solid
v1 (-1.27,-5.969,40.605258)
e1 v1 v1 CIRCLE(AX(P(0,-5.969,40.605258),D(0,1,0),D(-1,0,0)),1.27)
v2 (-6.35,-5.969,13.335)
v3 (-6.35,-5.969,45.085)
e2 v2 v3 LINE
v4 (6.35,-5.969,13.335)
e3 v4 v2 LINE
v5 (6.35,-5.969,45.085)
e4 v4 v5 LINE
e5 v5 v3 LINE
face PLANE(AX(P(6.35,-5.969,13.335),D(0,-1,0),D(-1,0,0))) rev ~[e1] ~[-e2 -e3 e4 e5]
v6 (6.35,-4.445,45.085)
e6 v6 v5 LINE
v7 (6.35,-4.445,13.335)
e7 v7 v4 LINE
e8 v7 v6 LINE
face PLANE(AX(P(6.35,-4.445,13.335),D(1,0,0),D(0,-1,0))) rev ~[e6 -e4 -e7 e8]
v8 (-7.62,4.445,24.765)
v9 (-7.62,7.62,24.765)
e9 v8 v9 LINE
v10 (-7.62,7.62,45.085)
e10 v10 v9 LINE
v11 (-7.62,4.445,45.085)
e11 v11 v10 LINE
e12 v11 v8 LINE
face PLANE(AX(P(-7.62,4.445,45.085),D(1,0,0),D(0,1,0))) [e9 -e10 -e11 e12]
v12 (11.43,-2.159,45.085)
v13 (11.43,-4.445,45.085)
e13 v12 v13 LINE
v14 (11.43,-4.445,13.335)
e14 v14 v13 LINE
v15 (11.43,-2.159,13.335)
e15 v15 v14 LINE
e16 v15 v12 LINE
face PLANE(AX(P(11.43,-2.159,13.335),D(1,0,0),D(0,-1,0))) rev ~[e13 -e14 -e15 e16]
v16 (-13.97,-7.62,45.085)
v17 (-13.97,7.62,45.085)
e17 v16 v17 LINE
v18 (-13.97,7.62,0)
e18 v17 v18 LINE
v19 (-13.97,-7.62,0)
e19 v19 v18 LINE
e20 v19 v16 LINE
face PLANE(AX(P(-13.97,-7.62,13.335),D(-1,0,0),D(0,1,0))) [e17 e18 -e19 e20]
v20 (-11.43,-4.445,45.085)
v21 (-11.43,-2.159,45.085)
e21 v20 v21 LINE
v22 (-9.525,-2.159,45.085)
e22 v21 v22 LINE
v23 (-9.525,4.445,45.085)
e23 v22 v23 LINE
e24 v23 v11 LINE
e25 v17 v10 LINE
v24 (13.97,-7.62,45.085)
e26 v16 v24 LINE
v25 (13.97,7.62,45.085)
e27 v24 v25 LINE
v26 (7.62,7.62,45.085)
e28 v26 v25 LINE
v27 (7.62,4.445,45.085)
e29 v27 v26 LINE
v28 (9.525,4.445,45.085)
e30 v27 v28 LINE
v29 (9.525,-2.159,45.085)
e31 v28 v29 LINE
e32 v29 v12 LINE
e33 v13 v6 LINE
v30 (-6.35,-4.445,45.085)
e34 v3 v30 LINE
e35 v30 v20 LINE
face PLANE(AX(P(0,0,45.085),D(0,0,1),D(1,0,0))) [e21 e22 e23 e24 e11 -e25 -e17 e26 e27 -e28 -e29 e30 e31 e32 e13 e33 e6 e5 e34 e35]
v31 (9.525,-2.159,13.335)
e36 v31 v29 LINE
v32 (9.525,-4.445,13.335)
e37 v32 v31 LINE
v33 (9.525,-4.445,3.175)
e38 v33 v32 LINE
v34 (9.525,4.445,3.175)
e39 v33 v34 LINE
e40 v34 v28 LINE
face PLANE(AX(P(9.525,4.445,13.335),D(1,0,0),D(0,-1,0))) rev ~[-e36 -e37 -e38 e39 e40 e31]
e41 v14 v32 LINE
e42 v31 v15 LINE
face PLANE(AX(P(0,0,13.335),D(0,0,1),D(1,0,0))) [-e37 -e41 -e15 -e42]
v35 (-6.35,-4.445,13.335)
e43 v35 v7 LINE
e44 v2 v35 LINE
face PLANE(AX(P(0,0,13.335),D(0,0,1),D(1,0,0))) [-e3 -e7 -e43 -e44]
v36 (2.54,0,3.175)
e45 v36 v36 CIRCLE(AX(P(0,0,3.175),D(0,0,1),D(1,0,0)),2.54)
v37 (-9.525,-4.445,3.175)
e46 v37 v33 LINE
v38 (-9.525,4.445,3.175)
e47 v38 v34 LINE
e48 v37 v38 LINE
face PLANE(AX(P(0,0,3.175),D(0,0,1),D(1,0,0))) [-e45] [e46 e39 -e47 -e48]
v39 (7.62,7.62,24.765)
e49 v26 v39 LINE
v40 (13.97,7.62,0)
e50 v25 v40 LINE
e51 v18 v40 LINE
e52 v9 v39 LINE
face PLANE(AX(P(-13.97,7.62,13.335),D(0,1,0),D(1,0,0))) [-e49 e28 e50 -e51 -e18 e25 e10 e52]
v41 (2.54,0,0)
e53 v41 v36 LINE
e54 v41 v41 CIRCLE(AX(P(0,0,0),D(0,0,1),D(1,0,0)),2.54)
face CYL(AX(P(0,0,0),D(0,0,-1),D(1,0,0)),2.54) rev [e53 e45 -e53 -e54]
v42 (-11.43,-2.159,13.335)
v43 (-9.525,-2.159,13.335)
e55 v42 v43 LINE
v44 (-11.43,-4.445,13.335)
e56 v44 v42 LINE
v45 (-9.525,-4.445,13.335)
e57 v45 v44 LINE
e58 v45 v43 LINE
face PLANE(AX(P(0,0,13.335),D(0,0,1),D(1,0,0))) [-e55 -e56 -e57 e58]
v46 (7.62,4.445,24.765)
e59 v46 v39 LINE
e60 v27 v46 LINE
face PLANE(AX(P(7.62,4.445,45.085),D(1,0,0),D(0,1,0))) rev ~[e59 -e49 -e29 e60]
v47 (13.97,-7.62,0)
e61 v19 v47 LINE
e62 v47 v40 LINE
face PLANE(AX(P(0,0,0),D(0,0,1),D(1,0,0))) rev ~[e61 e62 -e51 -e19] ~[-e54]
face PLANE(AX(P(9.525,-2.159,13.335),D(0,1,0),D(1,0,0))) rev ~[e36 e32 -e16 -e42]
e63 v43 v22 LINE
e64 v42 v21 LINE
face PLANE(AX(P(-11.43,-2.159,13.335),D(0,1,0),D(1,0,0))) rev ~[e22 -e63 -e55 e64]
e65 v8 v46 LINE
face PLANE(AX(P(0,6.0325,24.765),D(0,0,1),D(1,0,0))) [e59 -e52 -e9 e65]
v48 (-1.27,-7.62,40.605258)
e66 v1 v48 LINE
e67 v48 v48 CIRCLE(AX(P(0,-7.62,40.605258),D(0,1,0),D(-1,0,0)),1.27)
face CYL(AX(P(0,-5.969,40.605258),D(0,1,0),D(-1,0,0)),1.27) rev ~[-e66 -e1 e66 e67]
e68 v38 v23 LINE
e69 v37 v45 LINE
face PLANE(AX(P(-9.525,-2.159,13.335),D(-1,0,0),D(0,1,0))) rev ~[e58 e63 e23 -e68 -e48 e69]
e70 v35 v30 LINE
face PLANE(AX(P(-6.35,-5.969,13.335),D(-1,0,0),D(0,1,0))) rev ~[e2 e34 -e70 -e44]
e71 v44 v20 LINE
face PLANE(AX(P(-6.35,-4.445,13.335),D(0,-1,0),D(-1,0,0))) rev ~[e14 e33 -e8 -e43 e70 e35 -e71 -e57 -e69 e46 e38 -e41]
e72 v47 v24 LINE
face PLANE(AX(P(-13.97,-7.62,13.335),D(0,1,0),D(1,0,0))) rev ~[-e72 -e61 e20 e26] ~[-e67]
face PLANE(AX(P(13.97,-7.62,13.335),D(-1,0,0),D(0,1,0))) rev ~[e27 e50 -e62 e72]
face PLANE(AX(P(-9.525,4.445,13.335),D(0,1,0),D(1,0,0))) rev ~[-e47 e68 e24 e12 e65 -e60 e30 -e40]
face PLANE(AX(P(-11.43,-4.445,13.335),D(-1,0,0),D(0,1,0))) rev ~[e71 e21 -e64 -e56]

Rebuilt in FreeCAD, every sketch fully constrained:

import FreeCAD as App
import Part
import Sketcher

V = App.Vector
Q = App.Units.Quantity

doc = App.newDocument("Part")
body = doc.addObject("PartDesign::Body", "Body")

# Sketch on XY plane
sketch1 = doc.addObject("Sketcher::SketchObject", "Sketch")
body.addObject(sketch1)
sketch1.AttachmentSupport = (doc.XY_Plane, [""])
sketch1.MapMode = "FlatFace"
sketch1.addGeometry([
    Part.LineSegment(V(-14, 7.6, 0), V(-14, -7.6, 0)),  # 0
    Part.LineSegment(V(-14, -7.6, 0), V(14, -7.6, 0)),  # 1
    Part.LineSegment(V(14, -7.6, 0), V(14, 7.6, 0)),  # 2
    Part.LineSegment(V(14, 7.6, 0), V(-14, 7.6, 0)),  # 3
    Part.Circle(V(0, 0, 0), V(0, 0, 1), 2.5),  # 4
], False)
sketch1.addConstraint([
    Sketcher.Constraint("Coincident", 0, 2, 1, 1),
    Sketcher.Constraint("Coincident", 1, 2, 2, 1),
    Sketcher.Constraint("Coincident", 2, 2, 3, 1),
    Sketcher.Constraint("Coincident", 3, 2, 0, 1),
    Sketcher.Constraint("Vertical", 0),
    Sketcher.Constraint("Horizontal", 1),
    Sketcher.Constraint("Vertical", 2),
    Sketcher.Constraint("Horizontal", 3),
    Sketcher.Constraint("Coincident", 4, 3, -1, 1),
    Sketcher.Constraint("Symmetric", 0, 2, 2, 2, -1, 1),
    Sketcher.Constraint("Diameter", 4, Q("0.2 in")),
    Sketcher.Constraint("DistanceX", 1, 1, 1, 2, Q("1.1 in")),
    Sketcher.Constraint("DistanceY", 0, 2, 0, 1, Q("0.6 in")),
])
pad1 = doc.addObject("PartDesign::Pad", "Pad")
body.addObject(pad1)
pad1.Profile = sketch1
pad1.Length = Q("0.125 in")

# Sketch on XY plane
sketch2 = doc.addObject("Sketcher::SketchObject", "Sketch001")
body.addObject(sketch2)
sketch2.AttachmentSupport = (doc.XY_Plane, [""])
sketch2.MapMode = "FlatFace"
sketch2.AttachmentOffset = App.Placement(V(0, 0, 0.125 * 25.4), App.Rotation())
sketch2.addGeometry([
    Part.LineSegment(V(-14, 8, 0), V(-14, -8, 0)),  # 0
    Part.LineSegment(V(-14, -8, 0), V(14, -8, 0)),  # 1
    Part.LineSegment(V(14, -8, 0), V(14, 8, 0)),  # 2
    Part.LineSegment(V(14, 8, 0), V(-14, 8, 0)),  # 3
    Part.LineSegment(V(10, -4, 0), V(-10, -4, 0)),  # 4
    Part.LineSegment(V(-10, -4, 0), V(-10, 4, 0)),  # 5
    Part.LineSegment(V(-10, 4, 0), V(10, 4, 0)),  # 6
    Part.LineSegment(V(10, 4, 0), V(10, -4, 0)),  # 7
], False)
sketch2.addConstraint([
    Sketcher.Constraint("Coincident", 0, 2, 1, 1),
    Sketcher.Constraint("Coincident", 1, 2, 2, 1),
    Sketcher.Constraint("Coincident", 2, 2, 3, 1),
    Sketcher.Constraint("Coincident", 3, 2, 0, 1),
    Sketcher.Constraint("Coincident", 4, 2, 5, 1),
    Sketcher.Constraint("Coincident", 5, 2, 6, 1),
    Sketcher.Constraint("Coincident", 6, 2, 7, 1),
    Sketcher.Constraint("Coincident", 7, 2, 4, 1),
    Sketcher.Constraint("Vertical", 0),
    Sketcher.Constraint("Horizontal", 1),
    Sketcher.Constraint("Vertical", 2),
    Sketcher.Constraint("Horizontal", 3),
    Sketcher.Constraint("Horizontal", 4),
    Sketcher.Constraint("Vertical", 5),
    Sketcher.Constraint("Horizontal", 6),
    Sketcher.Constraint("Vertical", 7),
    Sketcher.Constraint("Symmetric", 0, 2, 2, 2, -1, 1),
    Sketcher.Constraint("Symmetric", 4, 2, 6, 2, -1, 1),
    Sketcher.Constraint("DistanceX", 1, 1, 1, 2, Q("1.1 in")),
    Sketcher.Constraint("DistanceY", 0, 2, 0, 1, Q("0.6 in")),
    Sketcher.Constraint("DistanceX", 4, 2, 4, 1, Q("0.75 in")),
    Sketcher.Constraint("DistanceY", 5, 1, 5, 2, Q("0.35 in")),
])
pad2 = doc.addObject("PartDesign::Pad", "Pad001")
body.addObject(pad2)
pad2.Profile = sketch2
pad2.Length = Q("0.4 in")

# Sketch on XY plane
sketch3 = doc.addObject("Sketcher::SketchObject", "Sketch002")
body.addObject(sketch3)
sketch3.AttachmentSupport = (doc.XY_Plane, [""])
sketch3.MapMode = "FlatFace"
sketch3.AttachmentOffset = App.Placement(V(0, 0, 0.525 * 25.4), App.Rotation())
sketch3.addGeometry([
    Part.LineSegment(V(-14, 7.6, 0), V(-14, -7.6, 0)),  # 0
    Part.LineSegment(V(-14, -7.6, 0), V(14, -7.6, 0)),  # 1
    Part.LineSegment(V(14, -7.6, 0), V(14, 7.6, 0)),  # 2
    Part.LineSegment(V(14, 7.6, 0), V(-14, 7.6, 0)),  # 3
    Part.LineSegment(V(-6.3, -4.4, 0), V(-11.4, -4.4, 0)),  # 4
    Part.LineSegment(V(-11.4, -4.4, 0), V(-11.4, -2.2, 0)),  # 5
    Part.LineSegment(V(-11.4, -2.2, 0), V(-9.5, -2.2, 0)),  # 6
    Part.LineSegment(V(-9.5, -2.2, 0), V(-9.5, 4.4, 0)),  # 7
    Part.LineSegment(V(-9.5, 4.4, 0), V(9.5, 4.4, 0)),  # 8
    Part.LineSegment(V(9.5, 4.4, 0), V(9.5, -2.2, 0)),  # 9
    Part.LineSegment(V(9.5, -2.2, 0), V(11.4, -2.2, 0)),  # 10
    Part.LineSegment(V(11.4, -2.2, 0), V(11.4, -4.4, 0)),  # 11
    Part.LineSegment(V(11.4, -4.4, 0), V(6.3, -4.4, 0)),  # 12
    Part.LineSegment(V(6.3, -4.4, 0), V(6.3, -6, 0)),  # 13
    Part.LineSegment(V(6.3, -6, 0), V(-6.3, -6, 0)),  # 14
    Part.LineSegment(V(-6.3, -6, 0), V(-6.3, -4.4, 0)),  # 15
], False)
sketch3.addConstraint([
    Sketcher.Constraint("Coincident", 0, 2, 1, 1),
    Sketcher.Constraint("Coincident", 1, 2, 2, 1),
    Sketcher.Constraint("Coincident", 2, 2, 3, 1),
    Sketcher.Constraint("Coincident", 3, 2, 0, 1),
    Sketcher.Constraint("Coincident", 4, 2, 5, 1),
    Sketcher.Constraint("Coincident", 5, 2, 6, 1),
    Sketcher.Constraint("Coincident", 6, 2, 7, 1),
    Sketcher.Constraint("Coincident", 7, 2, 8, 1),
    Sketcher.Constraint("Coincident", 8, 2, 9, 1),
    Sketcher.Constraint("Coincident", 9, 2, 10, 1),
    Sketcher.Constraint("Coincident", 10, 2, 11, 1),
    Sketcher.Constraint("Coincident", 11, 2, 12, 1),
    Sketcher.Constraint("Coincident", 12, 2, 13, 1),
    Sketcher.Constraint("Coincident", 13, 2, 14, 1),
    Sketcher.Constraint("Coincident", 14, 2, 15, 1),
    Sketcher.Constraint("Coincident", 15, 2, 4, 1),
    Sketcher.Constraint("Vertical", 0),
    Sketcher.Constraint("Horizontal", 1),
    Sketcher.Constraint("Vertical", 2),
    Sketcher.Constraint("Horizontal", 3),
    Sketcher.Constraint("Horizontal", 4),
    Sketcher.Constraint("Vertical", 5),
    Sketcher.Constraint("Horizontal", 6),
    Sketcher.Constraint("Vertical", 7),
    Sketcher.Constraint("Horizontal", 8),
    Sketcher.Constraint("Vertical", 9),
    Sketcher.Constraint("Horizontal", 10),
    Sketcher.Constraint("Vertical", 11),
    Sketcher.Constraint("Horizontal", 12),
    Sketcher.Constraint("Vertical", 13),
    Sketcher.Constraint("Horizontal", 14),
    Sketcher.Constraint("Vertical", 15),
    Sketcher.Constraint("Symmetric", 0, 2, 2, 2, -1, 1),
    Sketcher.Constraint("Symmetric", 6, 2, 9, 2, -2),
    Sketcher.Constraint("Symmetric", 4, 2, 11, 2, -2),
    Sketcher.Constraint("Equal", 4, 12),
    Sketcher.Constraint("DistanceX", 1, 1, 1, 2, Q("1.1 in")),
    Sketcher.Constraint("DistanceX", 4, 2, 4, 1, Q("0.2 in")),
    Sketcher.Constraint("DistanceX", 14, 2, 14, 1, Q("0.5 in")),
    Sketcher.Constraint("DistanceY", 0, 2, 0, 1, Q("0.6 in")),
    Sketcher.Constraint("DistanceX", 8, 1, 8, 2, Q("0.75 in")),
    Sketcher.Constraint("DistanceY", 5, 1, 5, 2, Q("0.09 in")),
    Sketcher.Constraint("DistanceY", 7, 1, 7, 2, Q("0.26 in")),
    Sketcher.Constraint("DistanceY", 13, 2, 13, 1, Q("0.06 in")),
    Sketcher.Constraint("DistanceY", 4, 2, -1, 1, Q("0.175 in")),
])
pad3 = doc.addObject("PartDesign::Pad", "Pad002")
body.addObject(pad3)
pad3.Profile = sketch3
pad3.Length = Q("1.25 in")

# Sketch on XY plane
sketch4 = doc.addObject("Sketcher::SketchObject", "Sketch003")
body.addObject(sketch4)
sketch4.AttachmentSupport = (doc.XY_Plane, [""])
sketch4.MapMode = "FlatFace"
sketch4.AttachmentOffset = App.Placement(V(0, 0, 1.775 * 25.4), App.Rotation())
sketch4.addGeometry([
    Part.LineSegment(V(-7.6, 7.6, 0), V(-7.6, 4.4, 0)),
    Part.LineSegment(V(-7.6, 4.4, 0), V(7.6, 4.4, 0)),
    Part.LineSegment(V(7.6, 4.4, 0), V(7.6, 7.6, 0)),
    Part.LineSegment(V(7.6, 7.6, 0), V(-7.6, 7.6, 0)),
], False)
sketch4.addConstraint([
    Sketcher.Constraint("Coincident", 0, 2, 1, 1),
    Sketcher.Constraint("Coincident", 1, 2, 2, 1),
    Sketcher.Constraint("Coincident", 2, 2, 3, 1),
    Sketcher.Constraint("Coincident", 3, 2, 0, 1),
    Sketcher.Constraint("Vertical", 0),
    Sketcher.Constraint("Horizontal", 1),
    Sketcher.Constraint("Vertical", 2),
    Sketcher.Constraint("Horizontal", 3),
    Sketcher.Constraint("DistanceX", 1, 1, 1, 2, Q("0.6 in")),
    Sketcher.Constraint("DistanceX", 0, 2, -1, 1, Q("0.3 in")),
    Sketcher.Constraint("DistanceY", -1, 1, 2, 2, Q("0.3 in")),
    Sketcher.Constraint("DistanceY", 0, 2, 0, 1, Q("0.125 in")),
])
pocket1 = doc.addObject("PartDesign::Pocket", "Pocket")
body.addObject(pocket1)
pocket1.Profile = sketch4
pocket1.Length = Q("0.8 in")

# Sketch on XZ plane
sketch5 = doc.addObject("Sketcher::SketchObject", "Sketch004")
body.addObject(sketch5)
sketch5.AttachmentSupport = (doc.XZ_Plane, [""])
sketch5.MapMode = "FlatFace"
sketch5.AttachmentOffset = App.Placement(V(0, 0, 0.235 * 25.4), App.Rotation())
sketch5.addGeometry(Part.Circle(V(0, 40.6, 0), V(0, 0, 1), 1.3), False)
sketch5.addConstraint([
    Sketcher.Constraint("PointOnObject", 0, 3, -2),
    Sketcher.Constraint("Diameter", 0, Q("0.1 in")),
    Sketcher.Constraint("DistanceY", -1, 1, 0, 3, 40.605258),
])
pocket2 = doc.addObject("PartDesign::Pocket", "Pocket001")
body.addObject(pocket2)
pocket2.Profile = sketch5
pocket2.Type = "ThroughAll"
pocket2.Reversed = True

doc.recompute()
